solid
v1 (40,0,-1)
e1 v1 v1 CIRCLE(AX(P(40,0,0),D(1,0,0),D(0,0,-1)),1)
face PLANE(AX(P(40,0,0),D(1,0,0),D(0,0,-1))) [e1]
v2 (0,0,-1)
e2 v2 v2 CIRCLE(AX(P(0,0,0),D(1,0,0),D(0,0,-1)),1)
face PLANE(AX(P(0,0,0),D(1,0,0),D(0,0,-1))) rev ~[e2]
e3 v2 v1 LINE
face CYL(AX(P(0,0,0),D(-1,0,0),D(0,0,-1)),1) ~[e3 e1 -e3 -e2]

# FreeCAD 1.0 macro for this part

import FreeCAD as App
import Part
import Sketcher

doc = App.newDocument("Part")
body = doc.addObject("PartDesign::Body", "Body")

sketch1 = body.newObject("Sketcher::SketchObject", "Sketch")
sketch1.AttachmentSupport = (doc.getObject("YZ_Plane"), [""])
sketch1.MapMode = "FlatFace"
sketch1.addGeometry(Part.Circle(App.Vector(0, 0, 0), App.Vector(0, 0, 1), 1), False)
sketch1.addConstraint([
    Sketcher.Constraint("Coincident", 0, 3, -1, 1),
    Sketcher.Constraint("Diameter", 0, 2.0),
])
pad1 = body.newObject("PartDesign::Pad", "Pad")
pad1.Profile = sketch1
pad1.Length = 40

doc.recompute()
